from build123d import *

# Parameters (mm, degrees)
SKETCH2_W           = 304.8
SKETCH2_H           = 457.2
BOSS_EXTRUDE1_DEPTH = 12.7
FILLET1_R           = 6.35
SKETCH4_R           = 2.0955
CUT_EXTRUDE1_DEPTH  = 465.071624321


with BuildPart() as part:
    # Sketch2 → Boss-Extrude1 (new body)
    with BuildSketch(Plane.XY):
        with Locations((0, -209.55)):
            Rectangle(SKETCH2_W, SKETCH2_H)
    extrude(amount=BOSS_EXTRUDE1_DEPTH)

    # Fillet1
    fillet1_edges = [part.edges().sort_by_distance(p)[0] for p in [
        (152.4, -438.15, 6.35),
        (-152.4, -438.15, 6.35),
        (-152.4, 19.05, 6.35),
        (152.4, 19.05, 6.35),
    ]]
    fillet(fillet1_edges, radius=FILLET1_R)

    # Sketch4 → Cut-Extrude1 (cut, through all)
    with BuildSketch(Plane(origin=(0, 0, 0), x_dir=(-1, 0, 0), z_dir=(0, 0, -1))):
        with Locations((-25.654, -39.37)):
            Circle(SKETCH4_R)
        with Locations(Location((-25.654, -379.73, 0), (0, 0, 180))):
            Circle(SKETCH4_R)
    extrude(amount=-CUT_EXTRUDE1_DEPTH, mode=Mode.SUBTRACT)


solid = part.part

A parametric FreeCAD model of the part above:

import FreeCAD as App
import Part
import Sketcher

V = App.Vector
Q = App.Units.Quantity


def edges_at(feature, points):
    """Names of the edges that pass closest to the given points."""
    edges = feature.Shape.Edges
    near = lambda p: min(range(len(edges)), key=lambda i: edges[i].distToShape(Part.Vertex(*p))[0])
    return sorted({f"Edge{near(p) + 1}" for p in points})

doc = App.newDocument("Part")
body = doc.addObject("PartDesign::Body", "Body")

# Sketch on XY plane
sketch1 = body.newObject("Sketcher::SketchObject", "Sketch")
sketch1.AttachmentSupport = (doc.getObject("XY_Plane"), [""])
sketch1.MapMode = "FlatFace"
sketch1.addGeometry(Part.LineSegment(V(-152.4, 19.05, 0), V(-152.4, -438.15, 0)), False)
sketch1.addGeometry(Part.LineSegment(V(-152.4, -438.15, 0), V(152.4, -438.15, 0)), False)
sketch1.addGeometry(Part.LineSegment(V(152.4, -438.15, 0), V(152.4, 19.05, 0)), False)
sketch1.addGeometry(Part.LineSegment(V(152.4, 19.05, 0), V(-152.4, 19.05, 0)), False)
sketch1.addConstraint(Sketcher.Constraint("Coincident", 0, 2, 1, 1))
sketch1.addConstraint(Sketcher.Constraint("Coincident", 1, 2, 2, 1))
sketch1.addConstraint(Sketcher.Constraint("Coincident", 2, 2, 3, 1))
sketch1.addConstraint(Sketcher.Constraint("Coincident", 3, 2, 0, 1))
sketch1.addConstraint(Sketcher.Constraint("Vertical", 0))
sketch1.addConstraint(Sketcher.Constraint("Horizontal", 1))
sketch1.addConstraint(Sketcher.Constraint("Vertical", 2))
sketch1.addConstraint(Sketcher.Constraint("Horizontal", 3))
sketch1.addConstraint(Sketcher.Constraint("DistanceX", 1, 1, 1, 2, Q("12 in")))
sketch1.addConstraint(Sketcher.Constraint("DistanceY", 0, 2, 0, 1, Q("18 in")))
sketch1.addConstraint(Sketcher.Constraint("DistanceX", 0, 2, -1, 1, Q("6 in")))
sketch1.addConstraint(Sketcher.Constraint("DistanceY", 0, 2, -1, 1, Q("17.25 in")))
pad1 = body.newObject("PartDesign::Pad", "Pad")
pad1.Profile = sketch1
pad1.Length = Q("0.5 in")
doc.recompute()

fillet = body.newObject("PartDesign::Fillet", "Fillet")
fillet.Base = (pad1, edges_at(pad1, [
    (152.4, -438.15, 6.35),
    (-152.4, -438.15, 6.35),
    (-152.4, 19.05, 6.35),
    (152.4, 19.05, 6.35),
]))
fillet.Radius = Q("0.25 in")

# Sketch on XY plane
sketch2 = body.newObject("Sketcher::SketchObject", "Sketch001")
sketch2.AttachmentSupport = (doc.getObject("XY_Plane"), [""])
sketch2.MapMode = "FlatFace"
sketch2.addGeometry(Part.Circle(V(25.654, -39.37, 0), V(0, 0, 1), 2.0955), False)
sketch2.addGeometry(Part.Circle(V(25.654, -379.73, 0), V(0, 0, 1), 2.0955), False)
sketch2.addConstraint(Sketcher.Constraint("Equal", 0, 1))
sketch2.addConstraint(Sketcher.Constraint("Vertical", 0, 3, 1, 3))
sketch2.addConstraint(Sketcher.Constraint("Diameter", 0, Q("0.165 in")))
sketch2.addConstraint(Sketcher.Constraint("DistanceY", 1, 3, 0, 3, Q("13.4 in")))
sketch2.addConstraint(Sketcher.Constraint("DistanceX", -1, 1, 0, 3, Q("1.01 in")))
sketch2.addConstraint(Sketcher.Constraint("DistanceY", 0, 3, -1, 1, Q("1.55 in")))
pocket1 = body.newObject("PartDesign::Pocket", "Pocket")
pocket1.Profile = sketch2
pocket1.Type = "ThroughAll"
pocket1.Reversed = True

doc.recompute()
